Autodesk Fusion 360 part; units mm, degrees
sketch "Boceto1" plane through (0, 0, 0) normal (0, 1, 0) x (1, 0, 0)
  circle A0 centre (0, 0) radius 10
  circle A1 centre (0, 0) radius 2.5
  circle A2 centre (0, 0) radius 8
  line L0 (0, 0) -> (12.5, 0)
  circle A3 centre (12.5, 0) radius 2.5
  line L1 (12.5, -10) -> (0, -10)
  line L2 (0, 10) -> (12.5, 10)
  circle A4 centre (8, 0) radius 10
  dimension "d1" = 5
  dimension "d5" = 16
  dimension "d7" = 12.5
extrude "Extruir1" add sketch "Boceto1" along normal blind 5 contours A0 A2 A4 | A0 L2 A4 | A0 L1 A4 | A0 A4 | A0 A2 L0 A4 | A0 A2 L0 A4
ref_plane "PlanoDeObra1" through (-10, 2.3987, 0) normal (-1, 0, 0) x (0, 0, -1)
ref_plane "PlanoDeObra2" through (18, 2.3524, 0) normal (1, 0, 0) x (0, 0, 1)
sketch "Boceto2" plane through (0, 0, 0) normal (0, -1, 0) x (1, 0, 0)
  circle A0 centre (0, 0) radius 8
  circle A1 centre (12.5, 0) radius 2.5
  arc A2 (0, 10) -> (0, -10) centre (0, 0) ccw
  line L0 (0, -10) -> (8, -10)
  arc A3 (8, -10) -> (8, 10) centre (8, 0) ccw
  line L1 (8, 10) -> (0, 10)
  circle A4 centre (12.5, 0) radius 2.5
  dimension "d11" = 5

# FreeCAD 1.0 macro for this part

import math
import FreeCAD as App
import Part
import Sketcher

V = App.Vector
Q = App.Units.Quantity

doc = App.newDocument("Part")
body = doc.addObject("PartDesign::Body", "Body")

sketch1 = body.newObject("Sketcher::SketchObject", "Sketch")
sketch1.AttachmentSupport = (doc.getObject("XZ_Plane"), [""])
sketch1.MapMode = "FlatFace"
sketch1.addGeometry([
    Part.ArcOfCircle(Part.Circle(V(0, 0, 0), V(0, 0, 1), 10), math.radians(90), math.radians(270)),
    Part.LineSegment(V(0, 10, 0), V(8, 10, 0)),
    Part.ArcOfCircle(Part.Circle(V(8, 0, 0), V(0, 0, 1), 10), math.radians(-90), math.radians(90)),
    Part.LineSegment(V(8, -10, 0), V(0, -10, 0)),
    Part.Circle(V(0, 0, 0), V(0, 0, 1), 8),
    Part.Circle(V(12.5, 0, 0), V(0, 0, 1), 2.5),
], False)
sketch1.addConstraint([
    Sketcher.Constraint("Tangent", 0, 1, 1, 1),
    Sketcher.Constraint("Tangent", 1, 2, 2, 2),
    Sketcher.Constraint("Tangent", 2, 1, 3, 1),
    Sketcher.Constraint("Tangent", 3, 2, 0, 2),
    Sketcher.Constraint("Horizontal", 1),
    Sketcher.Constraint("Horizontal", 3),
    Sketcher.Constraint("Coincident", 0, 3, -1, 1),
    Sketcher.Constraint("Coincident", 4, 3, -1, 1),
    Sketcher.Constraint("PointOnObject", 5, 3, -1),
    Sketcher.Constraint("Diameter", 4, Q("16 mm")),
    Sketcher.Constraint("Diameter", 5, Q("5 mm")),
    Sketcher.Constraint("Radius", 0, Q("10 mm")),
    Sketcher.Constraint("DistanceX", -1, 1, 5, 3, Q("12.5 mm")),
    Sketcher.Constraint("DistanceX", 1, 1, 1, 2, Q("8 mm")),
])
pad1 = body.newObject("PartDesign::Pad", "Pad")
pad1.Profile = sketch1
pad1.Length = 5
pad1.Reversed = True

doc.recompute()
